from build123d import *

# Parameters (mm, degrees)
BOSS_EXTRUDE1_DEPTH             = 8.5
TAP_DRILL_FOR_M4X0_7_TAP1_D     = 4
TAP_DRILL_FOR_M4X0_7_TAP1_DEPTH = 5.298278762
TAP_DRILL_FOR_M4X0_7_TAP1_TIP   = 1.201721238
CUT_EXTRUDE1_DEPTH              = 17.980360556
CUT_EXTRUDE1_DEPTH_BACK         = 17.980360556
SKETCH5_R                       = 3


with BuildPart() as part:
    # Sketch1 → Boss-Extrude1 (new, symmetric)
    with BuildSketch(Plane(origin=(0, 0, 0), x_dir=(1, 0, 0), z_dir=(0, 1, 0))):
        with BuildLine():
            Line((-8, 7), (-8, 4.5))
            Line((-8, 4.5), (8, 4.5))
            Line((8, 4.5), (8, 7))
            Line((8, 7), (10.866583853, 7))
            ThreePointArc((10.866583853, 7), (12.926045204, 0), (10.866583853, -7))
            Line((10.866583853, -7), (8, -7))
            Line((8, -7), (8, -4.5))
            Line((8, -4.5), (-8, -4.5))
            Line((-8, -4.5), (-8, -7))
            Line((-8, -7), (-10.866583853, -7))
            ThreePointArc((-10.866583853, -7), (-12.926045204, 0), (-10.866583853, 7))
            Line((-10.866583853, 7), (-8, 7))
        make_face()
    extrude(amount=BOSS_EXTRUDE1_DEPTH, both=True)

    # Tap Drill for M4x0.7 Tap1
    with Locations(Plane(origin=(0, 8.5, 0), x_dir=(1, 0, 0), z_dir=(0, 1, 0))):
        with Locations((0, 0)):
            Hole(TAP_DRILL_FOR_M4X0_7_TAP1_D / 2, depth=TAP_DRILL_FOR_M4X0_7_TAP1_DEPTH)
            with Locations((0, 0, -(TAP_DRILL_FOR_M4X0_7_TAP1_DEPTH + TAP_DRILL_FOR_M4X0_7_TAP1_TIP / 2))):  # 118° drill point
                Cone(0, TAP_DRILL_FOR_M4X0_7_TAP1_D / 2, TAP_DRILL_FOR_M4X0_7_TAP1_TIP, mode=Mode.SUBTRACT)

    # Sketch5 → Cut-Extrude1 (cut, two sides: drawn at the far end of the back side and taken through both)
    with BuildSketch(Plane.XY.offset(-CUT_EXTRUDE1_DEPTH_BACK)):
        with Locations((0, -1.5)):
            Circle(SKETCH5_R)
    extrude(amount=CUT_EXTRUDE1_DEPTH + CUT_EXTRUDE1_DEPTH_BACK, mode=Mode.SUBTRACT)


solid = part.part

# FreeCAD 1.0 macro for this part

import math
import FreeCAD as App
import Part
import Sketcher

V = App.Vector
Q = App.Units.Quantity

doc = App.newDocument("Part")
body = doc.addObject("PartDesign::Body", "Body")

sketch1 = body.newObject("Sketcher::SketchObject", "Sketch")
sketch1.AttachmentSupport = (doc.getObject("XZ_Plane"), [""])
sketch1.MapMode = "FlatFace"
sketch1.addGeometry([
    Part.LineSegment(V(-8, -4.5, 0), V(-8, -7, 0)),
    Part.LineSegment(V(-8, -7, 0), V(-10.866584, -7, 0)),
    Part.ArcOfCircle(Part.Circle(V(0, 0, 0), V(0, 0, 1), 12.926045), math.radians(147.21131), math.radians(212.78869)),
    Part.LineSegment(V(-10.866584, 7, 0), V(-8, 7, 0)),
    Part.LineSegment(V(-8, 7, 0), V(-8, 4.5, 0)),
    Part.LineSegment(V(-8, 4.5, 0), V(8, 4.5, 0)),
    Part.LineSegment(V(8, 4.5, 0), V(8, 7, 0)),
    Part.LineSegment(V(8, 7, 0), V(10.866584, 7, 0)),
    Part.ArcOfCircle(Part.Circle(V(0, 0, 0), V(0, 0, 1), 12.926045), math.radians(-32.78869), math.radians(32.78869)),
    Part.LineSegment(V(10.866584, -7, 0), V(8, -7, 0)),
    Part.LineSegment(V(8, -7, 0), V(8, -4.5, 0)),
    Part.LineSegment(V(8, -4.5, 0), V(-8, -4.5, 0)),
], False)
sketch1.addConstraint([
    Sketcher.Constraint("Coincident", 0, 2, 1, 1),
    Sketcher.Constraint("Coincident", 1, 2, 2, 2),
    Sketcher.Constraint("Coincident", 2, 1, 3, 1),
    Sketcher.Constraint("Coincident", 3, 2, 4, 1),
    Sketcher.Constraint("Coincident", 4, 2, 5, 1),
    Sketcher.Constraint("Coincident", 5, 2, 6, 1),
    Sketcher.Constraint("Coincident", 6, 2, 7, 1),
    Sketcher.Constraint("Coincident", 7, 2, 8, 2),
    Sketcher.Constraint("Coincident", 8, 1, 9, 1),
    Sketcher.Constraint("Coincident", 9, 2, 10, 1),
    Sketcher.Constraint("Coincident", 10, 2, 11, 1),
    Sketcher.Constraint("Coincident", 11, 2, 0, 1),
    Sketcher.Constraint("Vertical", 0),
    Sketcher.Constraint("Horizontal", 1),
    Sketcher.Constraint("Horizontal", 3),
    Sketcher.Constraint("Vertical", 4),
    Sketcher.Constraint("Horizontal", 5),
    Sketcher.Constraint("Vertical", 6),
    Sketcher.Constraint("Horizontal", 7),
    Sketcher.Constraint("Horizontal", 9),
    Sketcher.Constraint("Vertical", 10),
    Sketcher.Constraint("Horizontal", 11),
    Sketcher.Constraint("Coincident", 2, 3, -1, 1),
    Sketcher.Constraint("Coincident", 8, 3, -1, 1),
    Sketcher.Constraint("Equal", 2, 8),
    Sketcher.Constraint("Symmetric", 0, 2, 6, 2, -1, 1),
    Sketcher.Constraint("Symmetric", 3, 2, 9, 2, -1, 1),
    Sketcher.Constraint("Symmetric", 3, 2, 6, 2, -2),
    Sketcher.Constraint("Equal", 0, 4),
    Sketcher.Constraint("DistanceX", 5, 1, 5, 2, Q("16 mm")),
    Sketcher.Constraint("DistanceY", 0, 2, 0, 1, Q("2.5 mm")),
    Sketcher.Constraint("DistanceY", 0, 2, -1, 1, Q("7 mm")),
    Sketcher.Constraint("Radius", 2, Q("12.926045 mm")),
])
pad1 = body.newObject("PartDesign::Pad", "Pad")
pad1.Profile = sketch1
pad1.Length = 17
pad1.Midplane = True

sketch2 = body.newObject("Sketcher::SketchObject", "Sketch001")
sketch2.AttachmentSupport = (doc.getObject("XZ_Plane"), [""])
sketch2.MapMode = "FlatFace"
sketch2.AttachmentOffset = App.Placement(V(0, 0, -8.5), App.Rotation())
sketch2.addGeometry(Part.Circle(V(0, 0, 0), V(0, 0, 1), 2), False)
sketch2.addConstraint([
    Sketcher.Constraint("Coincident", 0, 3, -1, 1),
    Sketcher.Constraint("Diameter", 0, Q("4 mm")),
])
doc.recompute()
hole = body.newObject("PartDesign::Hole", "Hole")
hole.Profile = sketch2
hole.ThreadType = "None"
hole.Diameter = 4
hole.DepthType = "Dimension"
hole.Depth = 5.298279
hole.DrillPoint = "Angled"
hole.DrillPointAngle = 118
hole.Reversed = True

sketch3 = body.newObject("Sketcher::SketchObject", "Sketch002")
sketch3.AttachmentSupport = (doc.getObject("XY_Plane"), [""])
sketch3.MapMode = "FlatFace"
sketch3.addGeometry(Part.Circle(V(0, -1.5, 0), V(0, 0, 1), 3), False)
sketch3.addConstraint([
    Sketcher.Constraint("PointOnObject", 0, 3, -2),
    Sketcher.Constraint("Diameter", 0, Q("6 mm")),
    Sketcher.Constraint("DistanceY", 0, 3, -1, 1, Q("1.5 mm")),
])
pocket1 = body.newObject("PartDesign::Pocket", "Pocket")
pocket1.Profile = sketch3
pocket1.Type = "ThroughAll"
pocket1.Midplane = True

doc.recompute()
